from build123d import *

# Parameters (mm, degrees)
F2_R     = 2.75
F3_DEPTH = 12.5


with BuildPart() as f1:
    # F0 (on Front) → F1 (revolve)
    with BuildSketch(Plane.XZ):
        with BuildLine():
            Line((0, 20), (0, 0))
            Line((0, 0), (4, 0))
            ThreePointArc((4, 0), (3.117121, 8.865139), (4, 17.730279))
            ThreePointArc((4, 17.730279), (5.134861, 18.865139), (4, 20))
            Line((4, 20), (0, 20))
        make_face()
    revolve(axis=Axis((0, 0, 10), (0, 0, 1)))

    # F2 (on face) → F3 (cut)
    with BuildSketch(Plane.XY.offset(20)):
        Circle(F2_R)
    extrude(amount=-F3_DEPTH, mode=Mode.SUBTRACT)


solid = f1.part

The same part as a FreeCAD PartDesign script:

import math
import FreeCAD as App
import Part
import Sketcher

V = App.Vector
Q = App.Units.Quantity

doc = App.newDocument("Part")
body = doc.addObject("PartDesign::Body", "Body")

# Sketch on XZ plane
sketch1 = body.newObject("Sketcher::SketchObject", "Sketch")
sketch1.AttachmentSupport = (doc.getObject("XZ_Plane"), [""])
sketch1.MapMode = "FlatFace"
sketch1.addGeometry(Part.LineSegment(V(0, 20, 0), V(0, 0, 0)), False)
sketch1.addGeometry(Part.LineSegment(V(0, 0, 0), V(4, 0, 0)), False)
sketch1.addGeometry(Part.ArcOfCircle(Part.Circle(V(48.1, 8.9, 0), V(0, 0, 1), 44.9), math.radians(169), math.radians(191)), False)
sketch1.addGeometry(Part.ArcOfCircle(Part.Circle(V(4, 18.9, 0), V(0, 0, 1), 1.1), math.radians(-90), math.radians(90)), False)
sketch1.addGeometry(Part.LineSegment(V(4, 20, 0), V(0, 20, 0)), False)
sketch1.addConstraint(Sketcher.Constraint("Coincident", 0, 2, 1, 1))
sketch1.addConstraint(Sketcher.Constraint("Coincident", 1, 2, 2, 2))
sketch1.addConstraint(Sketcher.Constraint("Coincident", 2, 1, 3, 1))
sketch1.addConstraint(Sketcher.Constraint("Tangent", 3, 2, 4, 1))
sketch1.addConstraint(Sketcher.Constraint("Coincident", 4, 2, 0, 1))
sketch1.addConstraint(Sketcher.Constraint("Vertical", 0))
sketch1.addConstraint(Sketcher.Constraint("Horizontal", 1))
sketch1.addConstraint(Sketcher.Constraint("Horizontal", 4))
sketch1.addConstraint(Sketcher.Constraint("Coincident", 0, 2, -1, 1))
sketch1.addConstraint(Sketcher.Constraint("Vertical", 3, 3, 1, 2))
sketch1.addConstraint(Sketcher.Constraint("Vertical", 1, 2, 2, 1))
sketch1.addConstraint(Sketcher.Constraint("DistanceX", 1, 1, 1, 2, Q("4 mm")))
sketch1.addConstraint(Sketcher.Constraint("DistanceY", 0, 2, 0, 1, Q("20 mm")))
sketch1.addConstraint(Sketcher.Constraint("Radius", 3, Q("1.134861 mm")))
sketch1.addConstraint(Sketcher.Constraint("Radius", 2, Q("44.949633 mm")))
revolution = body.newObject("PartDesign::Revolution", "Revolution")
revolution.Profile = sketch1
revolution.ReferenceAxis = (sketch1, ["V_Axis"])
revolution.Angle = 360

# Sketch on XY plane
sketch2 = body.newObject("Sketcher::SketchObject", "Sketch001")
sketch2.AttachmentSupport = (doc.getObject("XY_Plane"), [""])
sketch2.MapMode = "FlatFace"
sketch2.AttachmentOffset = App.Placement(V(0, 0, 20), App.Rotation())
sketch2.addGeometry(Part.Circle(V(0, 0, 0), V(0, 0, 1), 2.8), False)
sketch2.addConstraint(Sketcher.Constraint("Coincident", 0, 3, -1, 1))
sketch2.addConstraint(Sketcher.Constraint("Diameter", 0, Q("5.5 mm")))
pocket1 = body.newObject("PartDesign::Pocket", "Pocket")
pocket1.Profile = sketch2
pocket1.Length = 12.5

doc.recompute()
